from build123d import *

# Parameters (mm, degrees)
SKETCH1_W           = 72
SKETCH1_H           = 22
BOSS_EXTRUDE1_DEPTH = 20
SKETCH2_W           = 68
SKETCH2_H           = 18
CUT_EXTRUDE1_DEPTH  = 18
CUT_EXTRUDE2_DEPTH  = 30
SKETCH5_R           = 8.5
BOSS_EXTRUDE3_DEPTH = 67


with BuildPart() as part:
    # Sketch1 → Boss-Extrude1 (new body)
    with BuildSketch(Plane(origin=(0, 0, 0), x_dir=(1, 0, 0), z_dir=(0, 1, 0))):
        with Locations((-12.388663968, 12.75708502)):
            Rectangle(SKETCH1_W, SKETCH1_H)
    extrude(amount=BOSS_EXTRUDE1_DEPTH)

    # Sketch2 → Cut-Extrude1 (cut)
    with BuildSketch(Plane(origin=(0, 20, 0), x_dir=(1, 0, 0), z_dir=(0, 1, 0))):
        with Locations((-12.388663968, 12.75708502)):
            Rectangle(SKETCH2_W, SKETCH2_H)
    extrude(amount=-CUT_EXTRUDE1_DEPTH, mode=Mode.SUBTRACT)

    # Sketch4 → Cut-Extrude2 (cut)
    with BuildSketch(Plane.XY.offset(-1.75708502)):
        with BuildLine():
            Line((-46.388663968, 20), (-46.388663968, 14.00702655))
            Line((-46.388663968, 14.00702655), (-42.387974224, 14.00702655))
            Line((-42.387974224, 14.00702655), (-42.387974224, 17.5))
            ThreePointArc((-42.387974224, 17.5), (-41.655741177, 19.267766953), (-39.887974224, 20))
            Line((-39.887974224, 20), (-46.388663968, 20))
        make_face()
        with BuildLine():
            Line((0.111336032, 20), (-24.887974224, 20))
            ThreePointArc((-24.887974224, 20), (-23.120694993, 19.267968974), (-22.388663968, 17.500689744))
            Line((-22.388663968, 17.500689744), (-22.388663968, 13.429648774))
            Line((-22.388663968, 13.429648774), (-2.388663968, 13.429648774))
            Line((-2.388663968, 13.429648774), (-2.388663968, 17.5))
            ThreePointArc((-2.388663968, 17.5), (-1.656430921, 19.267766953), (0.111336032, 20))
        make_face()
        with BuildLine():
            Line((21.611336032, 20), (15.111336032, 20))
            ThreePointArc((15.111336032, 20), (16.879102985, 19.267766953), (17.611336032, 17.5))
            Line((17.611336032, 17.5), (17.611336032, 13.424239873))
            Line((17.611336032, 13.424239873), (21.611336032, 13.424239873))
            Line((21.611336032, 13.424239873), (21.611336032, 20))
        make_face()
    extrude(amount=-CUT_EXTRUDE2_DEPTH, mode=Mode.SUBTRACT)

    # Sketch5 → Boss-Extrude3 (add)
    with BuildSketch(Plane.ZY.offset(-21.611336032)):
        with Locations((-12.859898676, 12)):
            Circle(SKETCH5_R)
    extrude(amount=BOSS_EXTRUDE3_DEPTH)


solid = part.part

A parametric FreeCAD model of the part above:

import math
import FreeCAD as App
import Part
import Sketcher
from FreeCAD import Vector
Q = App.Units.Quantity

doc = App.newDocument("Part")
body = doc.addObject("PartDesign::Body", "Body")

# Sketch on XZ plane
sketch1 = body.newObject("Sketcher::SketchObject", "Sketch")
sketch1.AttachmentSupport = (doc.getObject("XZ_Plane"), [""])
sketch1.MapMode = "FlatFace"
sketch1.addGeometry([
    Part.LineSegment(Vector(-48, -24, 0), Vector(-48, -2, 0)),
    Part.LineSegment(Vector(-48, -2, 0), Vector(24, -2, 0)),
    Part.LineSegment(Vector(24, -2, 0), Vector(24, -24, 0)),
    Part.LineSegment(Vector(24, -24, 0), Vector(-48, -24, 0)),
], False)
sketch1.addConstraint([
    Sketcher.Constraint("Coincident", 0, 2, 1, 1),
    Sketcher.Constraint("Coincident", 1, 2, 2, 1),
    Sketcher.Constraint("Coincident", 2, 2, 3, 1),
    Sketcher.Constraint("Coincident", 3, 2, 0, 1),
    Sketcher.Constraint("Vertical", 0),
    Sketcher.Constraint("Horizontal", 1),
    Sketcher.Constraint("Vertical", 2),
    Sketcher.Constraint("Horizontal", 3),
    Sketcher.Constraint("DistanceX", 1, 1, 1, 2, Q("72 mm")),
    Sketcher.Constraint("DistanceY", 0, 1, 0, 2, Q("22 mm")),
    Sketcher.Constraint("DistanceX", 0, 2, -1, 1, Q("48.388664 mm")),
    Sketcher.Constraint("DistanceY", 0, 2, -1, 1, Q("1.757085 mm")),
])
pad1 = body.newObject("PartDesign::Pad", "Pad")
pad1.Profile = sketch1
pad1.Length = 20
pad1.Reversed = True

# Sketch on XZ plane
sketch2 = body.newObject("Sketcher::SketchObject", "Sketch001")
sketch2.AttachmentSupport = (doc.getObject("XZ_Plane"), [""])
sketch2.MapMode = "FlatFace"
sketch2.AttachmentOffset = App.Placement(Vector(0, 0, -20), App.Rotation())
sketch2.addGeometry([
    Part.LineSegment(Vector(-46, -22, 0), Vector(-46, -4, 0)),
    Part.LineSegment(Vector(-46, -4, 0), Vector(22, -4, 0)),
    Part.LineSegment(Vector(22, -4, 0), Vector(22, -22, 0)),
    Part.LineSegment(Vector(22, -22, 0), Vector(-46, -22, 0)),
], False)
sketch2.addConstraint([
    Sketcher.Constraint("Coincident", 0, 2, 1, 1),
    Sketcher.Constraint("Coincident", 1, 2, 2, 1),
    Sketcher.Constraint("Coincident", 2, 2, 3, 1),
    Sketcher.Constraint("Coincident", 3, 2, 0, 1),
    Sketcher.Constraint("Vertical", 0),
    Sketcher.Constraint("Horizontal", 1),
    Sketcher.Constraint("Vertical", 2),
    Sketcher.Constraint("Horizontal", 3),
    Sketcher.Constraint("DistanceX", 1, 1, 1, 2, Q("68 mm")),
    Sketcher.Constraint("DistanceY", 0, 1, 0, 2, Q("18 mm")),
    Sketcher.Constraint("DistanceX", 0, 2, -1, 1, Q("46.388664 mm")),
    Sketcher.Constraint("DistanceY", 0, 2, -1, 1, Q("3.757085 mm")),
])
pocket1 = body.newObject("PartDesign::Pocket", "Pocket")
pocket1.Profile = sketch2
pocket1.Length = 18
pocket1.Reversed = True

# Sketch on XY plane
sketch3 = body.newObject("Sketcher::SketchObject", "Sketch002")
sketch3.AttachmentSupport = (doc.getObject("XY_Plane"), [""])
sketch3.MapMode = "FlatFace"
sketch3.AttachmentOffset = App.Placement(Vector(0, 0, -1.757085), App.Rotation())
sketch3.addGeometry([
    Part.LineSegment(Vector(-46.4, 20, 0), Vector(-46.4, 14, 0)),  # 0
    Part.LineSegment(Vector(-46.4, 14, 0), Vector(-42.4, 14, 0)),  # 1
    Part.LineSegment(Vector(-42.4, 14, 0), Vector(-42.4, 17.5, 0)),  # 2
    Part.ArcOfCircle(Part.Circle(Vector(-39.9, 17.5, 0), Vector(0, 0, 1), 2.5), math.radians(90), math.radians(180)),  # 3
    Part.LineSegment(Vector(-39.9, 20, 0), Vector(-46.4, 20, 0)),  # 4
    Part.LineSegment(Vector(0.1, 20, 0), Vector(-24.9, 20, 0)),  # 5
    Part.ArcOfCircle(Part.Circle(Vector(-24.9, 17.5, 0), Vector(0, 0, 1), 2.5), math.radians(0), math.radians(90)),  # 6
    Part.LineSegment(Vector(-22.4, 17.5, 0), Vector(-22.4, 13.4, 0)),  # 7
    Part.LineSegment(Vector(-22.4, 13.4, 0), Vector(-2.4, 13.4, 0)),  # 8
    Part.LineSegment(Vector(-2.4, 13.4, 0), Vector(-2.4, 17.5, 0)),  # 9
    Part.ArcOfCircle(Part.Circle(Vector(0.1, 17.5, 0), Vector(0, 0, 1), 2.5), math.radians(90), math.radians(180)),  # 10
    Part.LineSegment(Vector(21.6, 20, 0), Vector(15.1, 20, 0)),  # 11
    Part.ArcOfCircle(Part.Circle(Vector(15.1, 17.5, 0), Vector(0, 0, 1), 2.5), math.radians(0), math.radians(90)),  # 12
    Part.LineSegment(Vector(17.6, 17.5, 0), Vector(17.6, 13.4, 0)),  # 13
    Part.LineSegment(Vector(17.6, 13.4, 0), Vector(21.6, 13.4, 0)),  # 14
    Part.LineSegment(Vector(21.6, 13.4, 0), Vector(21.6, 20, 0)),  # 15
], False)
sketch3.addConstraint([
    Sketcher.Constraint("Coincident", 0, 2, 1, 1),
    Sketcher.Constraint("Coincident", 1, 2, 2, 1),
    Sketcher.Constraint("Tangent", 2, 2, 3, 2),
    Sketcher.Constraint("Tangent", 3, 1, 4, 1),
    Sketcher.Constraint("Coincident", 4, 2, 0, 1),
    Sketcher.Constraint("Tangent", 5, 2, 6, 2),
    Sketcher.Constraint("Tangent", 6, 1, 7, 1),
    Sketcher.Constraint("Coincident", 7, 2, 8, 1),
    Sketcher.Constraint("Coincident", 8, 2, 9, 1),
    Sketcher.Constraint("Tangent", 9, 2, 10, 2),
    Sketcher.Constraint("Tangent", 10, 1, 5, 1),
    Sketcher.Constraint("Tangent", 11, 2, 12, 2),
    Sketcher.Constraint("Tangent", 12, 1, 13, 1),
    Sketcher.Constraint("Coincident", 13, 2, 14, 1),
    Sketcher.Constraint("Coincident", 14, 2, 15, 1),
    Sketcher.Constraint("Coincident", 15, 2, 11, 1),
    Sketcher.Constraint("Vertical", 0),
    Sketcher.Constraint("Horizontal", 1),
    Sketcher.Constraint("Vertical", 2),
    Sketcher.Constraint("Horizontal", 4),
    Sketcher.Constraint("Horizontal", 5),
    Sketcher.Constraint("Vertical", 7),
    Sketcher.Constraint("Horizontal", 8),
    Sketcher.Constraint("Vertical", 9),
    Sketcher.Constraint("Horizontal", 11),
    Sketcher.Constraint("Vertical", 13),
    Sketcher.Constraint("Horizontal", 14),
    Sketcher.Constraint("Vertical", 15),
    Sketcher.Constraint("Equal", 3, 10),
    Sketcher.Constraint("Equal", 10, 12),
    Sketcher.Constraint("Horizontal", 3, 3, 10, 3),
    Sketcher.Constraint("Horizontal", 10, 3, 12, 3),
    Sketcher.Constraint("Radius", 3, Q("2.5 mm")),
    Sketcher.Constraint("DistanceX", 8, 1, 8, 2, Q("20 mm")),
    Sketcher.Constraint("DistanceX", 14, 1, 14, 2, Q("4 mm")),
    Sketcher.Constraint("DistanceY", -1, 1, 3, 1, Q("20 mm")),
    Sketcher.Constraint("DistanceX", 3, 3, 6, 3, Q("15 mm")),
    Sketcher.Constraint("DistanceX", 10, 3, 12, 3, Q("15 mm")),
    Sketcher.Constraint("DistanceX", 0, 2, 10, 3, Q("46.5 mm")),
    Sketcher.Constraint("Radius", 6, Q("2.49931 mm")),
    Sketcher.Constraint("DistanceY", 7, 2, 7, 1, Q("4.071041 mm")),
    Sketcher.Constraint("DistanceY", 13, 2, 13, 1, Q("4.07576 mm")),
    Sketcher.Constraint("DistanceY", 0, 2, 0, 1, Q("5.992973 mm")),
    Sketcher.Constraint("DistanceX", 3, 3, -1, 1, Q("39.887974 mm")),
])
pocket2 = body.newObject("PartDesign::Pocket", "Pocket001")
pocket2.Profile = sketch3
pocket2.Length = 30

# Sketch on YZ plane
sketch4 = body.newObject("Sketcher::SketchObject", "Sketch003")
sketch4.AttachmentSupport = (doc.getObject("YZ_Plane"), [""])
sketch4.MapMode = "FlatFace"
sketch4.AttachmentOffset = App.Placement(Vector(0, 0, 21.611336), App.Rotation())
sketch4.addGeometry(Part.Circle(Vector(12, -13, 0), Vector(0, 0, 1), 8), False)
sketch4.addConstraint([
    Sketcher.Constraint("Diameter", 0, Q("17 mm")),
    Sketcher.Constraint("DistanceX", -1, 1, 0, 3, Q("12 mm")),
    Sketcher.Constraint("DistanceY", 0, 3, -1, 1, Q("12.859899 mm")),
])
pad2 = body.newObject("PartDesign::Pad", "Pad001")
pad2.Profile = sketch4
pad2.Length = 67
pad2.Reversed = True

doc.recompute()
